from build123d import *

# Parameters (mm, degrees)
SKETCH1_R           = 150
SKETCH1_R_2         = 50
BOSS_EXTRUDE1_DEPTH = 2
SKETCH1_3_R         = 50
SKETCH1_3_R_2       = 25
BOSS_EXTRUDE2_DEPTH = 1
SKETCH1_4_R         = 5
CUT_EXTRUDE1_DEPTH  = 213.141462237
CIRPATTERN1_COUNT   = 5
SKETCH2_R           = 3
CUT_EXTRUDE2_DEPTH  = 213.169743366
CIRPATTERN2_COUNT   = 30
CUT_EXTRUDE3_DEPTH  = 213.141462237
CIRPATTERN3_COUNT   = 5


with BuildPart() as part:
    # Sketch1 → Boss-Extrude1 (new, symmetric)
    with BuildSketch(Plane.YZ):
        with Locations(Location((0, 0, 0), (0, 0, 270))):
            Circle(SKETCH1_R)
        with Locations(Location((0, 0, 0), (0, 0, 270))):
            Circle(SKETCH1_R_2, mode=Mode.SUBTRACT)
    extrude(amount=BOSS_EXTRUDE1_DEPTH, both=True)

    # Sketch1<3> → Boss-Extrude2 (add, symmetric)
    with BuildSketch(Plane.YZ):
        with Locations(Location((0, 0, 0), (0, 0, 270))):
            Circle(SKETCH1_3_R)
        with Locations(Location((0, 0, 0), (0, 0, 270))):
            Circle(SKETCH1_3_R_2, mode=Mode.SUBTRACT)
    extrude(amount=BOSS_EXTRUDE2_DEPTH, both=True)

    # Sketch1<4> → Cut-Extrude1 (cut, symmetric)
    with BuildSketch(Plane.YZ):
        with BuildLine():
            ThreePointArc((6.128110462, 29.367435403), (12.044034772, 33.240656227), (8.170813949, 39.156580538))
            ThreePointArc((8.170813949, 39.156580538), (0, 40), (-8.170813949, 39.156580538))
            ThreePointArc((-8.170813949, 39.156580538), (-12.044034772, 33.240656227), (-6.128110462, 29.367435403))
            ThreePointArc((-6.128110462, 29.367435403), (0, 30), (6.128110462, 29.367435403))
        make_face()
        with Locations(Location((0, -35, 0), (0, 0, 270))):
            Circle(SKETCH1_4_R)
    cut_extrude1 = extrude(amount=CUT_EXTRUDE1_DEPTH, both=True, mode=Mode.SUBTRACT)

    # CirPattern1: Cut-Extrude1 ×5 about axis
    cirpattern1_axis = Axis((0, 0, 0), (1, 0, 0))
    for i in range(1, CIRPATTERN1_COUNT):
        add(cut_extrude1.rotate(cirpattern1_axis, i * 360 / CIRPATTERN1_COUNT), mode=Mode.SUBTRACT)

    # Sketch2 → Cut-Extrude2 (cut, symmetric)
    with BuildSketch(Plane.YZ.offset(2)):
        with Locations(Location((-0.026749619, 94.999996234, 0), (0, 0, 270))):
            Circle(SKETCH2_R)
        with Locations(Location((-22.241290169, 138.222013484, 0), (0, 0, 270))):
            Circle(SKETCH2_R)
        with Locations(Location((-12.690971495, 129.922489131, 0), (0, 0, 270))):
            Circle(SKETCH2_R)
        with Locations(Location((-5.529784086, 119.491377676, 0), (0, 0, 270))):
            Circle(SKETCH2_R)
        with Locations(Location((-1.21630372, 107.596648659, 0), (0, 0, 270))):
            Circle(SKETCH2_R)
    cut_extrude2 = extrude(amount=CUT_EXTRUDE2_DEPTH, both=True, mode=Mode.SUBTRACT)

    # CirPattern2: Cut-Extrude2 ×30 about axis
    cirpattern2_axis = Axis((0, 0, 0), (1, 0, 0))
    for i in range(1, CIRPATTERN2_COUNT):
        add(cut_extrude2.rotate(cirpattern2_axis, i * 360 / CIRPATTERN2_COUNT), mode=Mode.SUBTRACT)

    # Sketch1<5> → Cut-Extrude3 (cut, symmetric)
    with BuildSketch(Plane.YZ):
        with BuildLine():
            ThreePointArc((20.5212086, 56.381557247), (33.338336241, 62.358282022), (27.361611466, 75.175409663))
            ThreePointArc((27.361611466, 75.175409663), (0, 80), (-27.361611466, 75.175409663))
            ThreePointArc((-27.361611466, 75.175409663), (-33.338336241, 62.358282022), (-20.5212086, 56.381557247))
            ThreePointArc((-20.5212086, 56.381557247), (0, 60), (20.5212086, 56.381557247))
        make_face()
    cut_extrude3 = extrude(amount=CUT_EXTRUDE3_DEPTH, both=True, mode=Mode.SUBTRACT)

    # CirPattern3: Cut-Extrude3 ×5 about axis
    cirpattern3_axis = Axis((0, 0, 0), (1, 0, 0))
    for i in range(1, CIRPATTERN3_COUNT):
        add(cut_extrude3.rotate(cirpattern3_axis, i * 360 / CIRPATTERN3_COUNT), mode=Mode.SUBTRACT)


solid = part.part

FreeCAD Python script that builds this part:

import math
import FreeCAD as App
import Part
import Sketcher

doc = App.newDocument("Part")
params = doc.addObject("Spreadsheet::Sheet", "Params")
for row, (alias, value) in enumerate([
    ("sketch1_diameter", "300 mm"),
    ("sketch1_diameter2", "100 mm"),
    ("pad1_length", "4 mm"),
    ("sketch2_diameter", "100 mm"),
    ("sketch2_diameter2", "50 mm"),
    ("pad2_length", "2 mm"),
    ("sketch3_diameter", "10 mm"),
    ("sketch3_radius", "40 mm"),
    ("pocket1_length", "426.282924 mm"),
    ("sketch4_diameter", "6 mm"),
    ("pocket2_length", "426.339487 mm"),
    ("sketch5_radius", "10 mm"),
    ("sketch5_radius2", "80 mm"),
    ("pocket3_length", "426.282924 mm"),
], start=1):
    params.set(f"A{row}", alias)
    params.set(f"B{row}", "=" + value)
    params.setAlias(f"B{row}", alias)

body = doc.addObject("PartDesign::Body", "Body")

# Sketch on YZ plane
sketch1 = body.newObject("Sketcher::SketchObject", "Sketch")
sketch1.AttachmentSupport = (doc.getObject("YZ_Plane"), [""])
sketch1.MapMode = "FlatFace"
sketch1.addGeometry([
    Part.Circle(App.Vector(0, 0, 0), App.Vector(0, 0, 1), 150),
    Part.Circle(App.Vector(0, 0, 0), App.Vector(0, 0, 1), 50),
], False)
sketch1.addConstraint([
    Sketcher.Constraint("Coincident", 0, 3, -1, 1),
    Sketcher.Constraint("Coincident", 1, 3, -1, 1),
    Sketcher.Constraint("Diameter", 0, 300.0),
    Sketcher.Constraint("Diameter", 1, 100.0),
])
sketch1.setExpression("Constraints[2]", "Params.sketch1_diameter")
sketch1.setExpression("Constraints[3]", "Params.sketch1_diameter2")
pad1 = body.newObject("PartDesign::Pad", "Pad")
pad1.Profile = sketch1
pad1.setExpression("Length", "Params.pad1_length")
pad1.Midplane = True

# Sketch on YZ plane
sketch2 = body.newObject("Sketcher::SketchObject", "Sketch001")
sketch2.AttachmentSupport = (doc.getObject("YZ_Plane"), [""])
sketch2.MapMode = "FlatFace"
sketch2.addGeometry([
    Part.Circle(App.Vector(0, 0, 0), App.Vector(0, 0, 1), 50),
    Part.Circle(App.Vector(0, 0, 0), App.Vector(0, 0, 1), 25),
], False)
sketch2.addConstraint([
    Sketcher.Constraint("Coincident", 0, 3, -1, 1),
    Sketcher.Constraint("Coincident", 1, 3, -1, 1),
    Sketcher.Constraint("Diameter", 0, 100.0),
    Sketcher.Constraint("Diameter", 1, 50.0),
])
sketch2.setExpression("Constraints[2]", "Params.sketch2_diameter")
sketch2.setExpression("Constraints[3]", "Params.sketch2_diameter2")
pad2 = body.newObject("PartDesign::Pad", "Pad001")
pad2.Profile = sketch2
pad2.setExpression("Length", "Params.pad2_length")
pad2.Midplane = True

# Sketch on YZ plane
sketch3 = body.newObject("Sketcher::SketchObject", "Sketch002")
sketch3.AttachmentSupport = (doc.getObject("YZ_Plane"), [""])
sketch3.MapMode = "FlatFace"
sketch3.addGeometry([
    Part.ArcOfCircle(Part.Circle(App.Vector(7.149462, 34.262008, 0), App.Vector(0, 0, 1), 5), math.radians(-101.786789), math.radians(78.213211)),  # 0
    Part.ArcOfCircle(Part.Circle(App.Vector(0, 0, 0), App.Vector(0, 0, 1), 40), math.radians(78.213211), math.radians(101.786789)),  # 1
    Part.ArcOfCircle(Part.Circle(App.Vector(-7.149462, 34.262008, 0), App.Vector(0, 0, 1), 5), math.radians(101.786789), math.radians(281.786789)),  # 2
    Part.ArcOfCircle(Part.Circle(App.Vector(0, 0, 0), App.Vector(0, 0, 1), 30), math.radians(78.213211), math.radians(101.786789)),  # 3
    Part.Circle(App.Vector(0, -35, 0), App.Vector(0, 0, 1), 5),  # 4
], False)
sketch3.addConstraint([
    Sketcher.Constraint("Tangent", 0, 2, 1, 1),
    Sketcher.Constraint("Tangent", 1, 2, 2, 1),
    Sketcher.Constraint("Tangent", 2, 2, 3, 2),
    Sketcher.Constraint("Tangent", 3, 1, 0, 1),
    Sketcher.Constraint("Coincident", 1, 3, -1, 1),
    Sketcher.Constraint("Coincident", 3, 3, -1, 1),
    Sketcher.Constraint("Equal", 2, 4),
    Sketcher.Constraint("PointOnObject", 4, 3, -2),
    Sketcher.Constraint("Horizontal", 0, 3, 2, 3),
    Sketcher.Constraint("Diameter", 4, 10.0),
    Sketcher.Constraint("Radius", 1, 40.0),
    Sketcher.Constraint("DistanceY", 4, 3, -1, 1, 35.0),
    Sketcher.Constraint("DistanceY", -1, 1, 0, 2, 39.156581),
])
sketch3.setExpression("Constraints[9]", "Params.sketch3_diameter")
sketch3.setExpression("Constraints[10]", "Params.sketch3_radius")
pocket1 = body.newObject("PartDesign::Pocket", "Pocket")
pocket1.Profile = sketch3
pocket1.setExpression("Length", "Params.pocket1_length")
pocket1.Midplane = True
doc.recompute()

polarpattern = body.newObject("PartDesign::PolarPattern", "PolarPattern")
polarpattern.Originals = [pocket1]
polarpattern.Axis = (doc.getObject("X_Axis"), [""])
polarpattern.Angle = 360
polarpattern.Occurrences = 5
body.Tip = polarpattern

# Sketch on YZ plane
sketch4 = body.newObject("Sketcher::SketchObject", "Sketch003")
sketch4.AttachmentSupport = (doc.getObject("YZ_Plane"), [""])
sketch4.MapMode = "FlatFace"
sketch4.AttachmentOffset = App.Placement(App.Vector(0, 0, 2), App.Rotation())
sketch4.addGeometry([
    Part.Circle(App.Vector(-0.02675, 94.999996, 0), App.Vector(0, 0, 1), 3),  # 0
    Part.Circle(App.Vector(-22.24129, 138.222013, 0), App.Vector(0, 0, 1), 3),  # 1
    Part.Circle(App.Vector(-12.690971, 129.922489, 0), App.Vector(0, 0, 1), 3),  # 2
    Part.Circle(App.Vector(-5.529784, 119.491378, 0), App.Vector(0, 0, 1), 3),  # 3
    Part.Circle(App.Vector(-1.216304, 107.596649, 0), App.Vector(0, 0, 1), 3),  # 4
], False)
sketch4.addConstraint([
    Sketcher.Constraint("Equal", 0, 1),
    Sketcher.Constraint("Equal", 1, 2),
    Sketcher.Constraint("Equal", 2, 3),
    Sketcher.Constraint("Equal", 3, 4),
    Sketcher.Constraint("Diameter", 0, 6.0),
    Sketcher.Constraint("DistanceX", 0, 3, -1, 1, 0.02675),
    Sketcher.Constraint("DistanceX", 1, 3, -1, 1, 22.24129),
    Sketcher.Constraint("DistanceX", 2, 3, -1, 1, 12.690971),
    Sketcher.Constraint("DistanceY", -1, 1, 2, 3, 129.922489),
    Sketcher.Constraint("DistanceY", -1, 1, 4, 3, 107.596649),
    Sketcher.Constraint("DistanceY", 3, 3, 2, 3, 10.431111),
    Sketcher.Constraint("DistanceY", 0, 3, 3, 3, 24.491381),
    Sketcher.Constraint("DistanceX", 3, 3, 4, 3, 4.31348),
    Sketcher.Constraint("DistanceY", -1, 1, 1, 3, 138.222013),
    Sketcher.Constraint("DistanceX", 3, 3, -1, 1, 5.529784),
])
sketch4.setExpression("Constraints[4]", "Params.sketch4_diameter")
pocket2 = body.newObject("PartDesign::Pocket", "Pocket001")
pocket2.Profile = sketch4
pocket2.setExpression("Length", "Params.pocket2_length")
pocket2.Midplane = True
doc.recompute()

polarpattern2 = body.newObject("PartDesign::PolarPattern", "PolarPattern001")
polarpattern2.Originals = [pocket2]
polarpattern2.Axis = (doc.getObject("X_Axis"), [""])
polarpattern2.Angle = 360
polarpattern2.Occurrences = 30
body.Tip = polarpattern2

# Sketch on YZ plane
sketch5 = body.newObject("Sketcher::SketchObject", "Sketch004")
sketch5.AttachmentSupport = (doc.getObject("YZ_Plane"), [""])
sketch5.MapMode = "FlatFace"
sketch5.addGeometry([
    Part.ArcOfCircle(Part.Circle(App.Vector(23.94141, 65.778483, 0), App.Vector(0, 0, 1), 10), math.radians(-110), math.radians(70)),
    Part.ArcOfCircle(Part.Circle(App.Vector(0, 0, 0), App.Vector(0, 0, 1), 80), math.radians(70), math.radians(110)),
    Part.ArcOfCircle(Part.Circle(App.Vector(-23.94141, 65.778483, 0), App.Vector(0, 0, 1), 10), math.radians(110), math.radians(290)),
    Part.ArcOfCircle(Part.Circle(App.Vector(0, 0, 0), App.Vector(0, 0, 1), 60), math.radians(70), math.radians(110)),
], False)
sketch5.addConstraint([
    Sketcher.Constraint("Tangent", 0, 2, 1, 1),
    Sketcher.Constraint("Tangent", 1, 2, 2, 1),
    Sketcher.Constraint("Tangent", 2, 2, 3, 2),
    Sketcher.Constraint("Tangent", 3, 1, 0, 1),
    Sketcher.Constraint("Coincident", 1, 3, -1, 1),
    Sketcher.Constraint("Coincident", 3, 3, -1, 1),
    Sketcher.Constraint("Horizontal", 0, 3, 2, 3),
    Sketcher.Constraint("Radius", 0, 10.0),
    Sketcher.Constraint("Radius", 1, 80.0),
    Sketcher.Constraint("DistanceX", 0, 3, 0, 2, 3.420201),
])
sketch5.setExpression("Constraints[7]", "Params.sketch5_radius")
sketch5.setExpression("Constraints[8]", "Params.sketch5_radius2")
pocket3 = body.newObject("PartDesign::Pocket", "Pocket002")
pocket3.Profile = sketch5
pocket3.setExpression("Length", "Params.pocket3_length")
pocket3.Midplane = True
doc.recompute()

polarpattern3 = body.newObject("PartDesign::PolarPattern", "PolarPattern002")
polarpattern3.Originals = [pocket3]
polarpattern3.Axis = (doc.getObject("X_Axis"), [""])
polarpattern3.Angle = 360
polarpattern3.Occurrences = 5
body.Tip = polarpattern3

doc.recompute()
